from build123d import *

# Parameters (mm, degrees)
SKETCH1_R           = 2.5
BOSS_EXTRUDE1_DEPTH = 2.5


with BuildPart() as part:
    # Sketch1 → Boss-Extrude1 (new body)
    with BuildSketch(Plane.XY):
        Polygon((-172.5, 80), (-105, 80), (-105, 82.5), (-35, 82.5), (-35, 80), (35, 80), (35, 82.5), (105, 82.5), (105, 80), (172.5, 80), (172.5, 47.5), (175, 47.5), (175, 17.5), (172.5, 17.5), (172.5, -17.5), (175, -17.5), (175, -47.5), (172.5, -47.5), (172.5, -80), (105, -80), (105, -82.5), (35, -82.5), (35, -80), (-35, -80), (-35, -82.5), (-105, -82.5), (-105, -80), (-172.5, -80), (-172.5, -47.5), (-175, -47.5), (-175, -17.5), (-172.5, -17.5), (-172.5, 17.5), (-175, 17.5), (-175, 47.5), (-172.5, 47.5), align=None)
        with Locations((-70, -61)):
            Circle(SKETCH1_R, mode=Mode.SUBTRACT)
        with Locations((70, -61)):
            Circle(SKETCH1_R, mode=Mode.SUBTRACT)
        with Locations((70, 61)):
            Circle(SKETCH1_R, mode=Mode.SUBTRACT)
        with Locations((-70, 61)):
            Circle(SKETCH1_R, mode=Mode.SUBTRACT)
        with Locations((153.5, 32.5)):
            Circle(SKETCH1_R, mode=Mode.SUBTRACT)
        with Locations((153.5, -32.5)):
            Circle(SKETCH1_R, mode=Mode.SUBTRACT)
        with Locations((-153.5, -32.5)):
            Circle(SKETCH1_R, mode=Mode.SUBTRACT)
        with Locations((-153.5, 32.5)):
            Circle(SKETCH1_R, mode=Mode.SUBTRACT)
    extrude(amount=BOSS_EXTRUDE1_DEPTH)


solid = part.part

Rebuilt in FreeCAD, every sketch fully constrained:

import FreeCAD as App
import Part
import Sketcher
from FreeCAD import Vector
Q = App.Units.Quantity


def add_polygon(sketch, points):
    """Adds a closed chain of lines whose ends are joined by coincident constraints."""
    first, n = sketch.GeometryCount, len(points)
    for a, b in zip(points, points[1:] + points[:1]):
        sketch.addGeometry(Part.LineSegment(App.Vector(*a, 0), App.Vector(*b, 0)), False)
    for i in range(n):
        sketch.addConstraint(Sketcher.Constraint("Coincident", first + i, 2, first + (i + 1) % n, 1))

doc = App.newDocument("Part")
params = doc.addObject("Spreadsheet::Sheet", "Params")
for row, (alias, value) in enumerate([
    ("sketch1_diameter", "5 mm"),
    ("sketch1_width", "70 mm"),
    ("sketch1_height", "30 mm"),
    ("sketch1_height2", "35 mm"),
    ("sketch1_width2", "67.5 mm"),
    ("pad1_length", "2.5 mm"),
], start=1):
    params.set(f"A{row}", alias)
    params.set(f"B{row}", "=" + value)
    params.setAlias(f"B{row}", alias)

body = doc.addObject("PartDesign::Body", "Body")

# Sketch on XY plane
sketch1 = body.newObject("Sketcher::SketchObject", "Sketch")
sketch1.AttachmentSupport = (doc.getObject("XY_Plane"), [""])
sketch1.MapMode = "FlatFace"
add_polygon(sketch1, [(-105, 80), (-172.5, 80), (-172.5, 47.5), (-175, 47.5), (-175, 17.5), (-172.5, 17.5), (-172.5, -17.5), (-175, -17.5), (-175, -47.5), (-172.5, -47.5), (-172.5, -80), (-105, -80), (-105, -82.5), (-35, -82.5), (-35, -80), (35, -80), (35, -82.5), (105, -82.5), (105, -80), (172.5, -80), (172.5, -47.5), (175, -47.5), (175, -17.5), (172.5, -17.5), (172.5, 17.5), (175, 17.5), (175, 47.5), (172.5, 47.5), (172.5, 80), (105, 80), (105, 82.5), (35, 82.5), (35, 80), (-35, 80), (-35, 82.5), (-105, 82.5)])  # lines 0-35
sketch1.addGeometry(Part.Circle(Vector(153.5, -32.5, 0), Vector(0, 0, 1), 2.5), False)  # 36
sketch1.addGeometry(Part.Circle(Vector(70, -61, 0), Vector(0, 0, 1), 2.5), False)  # 37
sketch1.addGeometry(Part.Circle(Vector(-70, -61, 0), Vector(0, 0, 1), 2.5), False)  # 38
sketch1.addGeometry(Part.Circle(Vector(-153.5, -32.5, 0), Vector(0, 0, 1), 2.5), False)  # 39
sketch1.addGeometry(Part.Circle(Vector(153.5, 32.5, 0), Vector(0, 0, 1), 2.5), False)  # 40
sketch1.addGeometry(Part.Circle(Vector(70, 61, 0), Vector(0, 0, 1), 2.5), False)  # 41
sketch1.addGeometry(Part.Circle(Vector(-70, 61, 0), Vector(0, 0, 1), 2.5), False)  # 42
sketch1.addGeometry(Part.Circle(Vector(-153.5, 32.5, 0), Vector(0, 0, 1), 2.5), False)  # 43
sketch1.addConstraint([
    Sketcher.Constraint("Horizontal", 0),
    Sketcher.Constraint("Vertical", 1),
    Sketcher.Constraint("Horizontal", 2),
    Sketcher.Constraint("Vertical", 3),
    Sketcher.Constraint("Horizontal", 4),
    Sketcher.Constraint("Vertical", 5),
    Sketcher.Constraint("Horizontal", 6),
    Sketcher.Constraint("Vertical", 7),
    Sketcher.Constraint("Horizontal", 8),
    Sketcher.Constraint("Vertical", 9),
    Sketcher.Constraint("Horizontal", 10),
    Sketcher.Constraint("Vertical", 11),
    Sketcher.Constraint("Horizontal", 12),
    Sketcher.Constraint("Vertical", 13),
    Sketcher.Constraint("Horizontal", 14),
    Sketcher.Constraint("Vertical", 15),
    Sketcher.Constraint("Horizontal", 16),
    Sketcher.Constraint("Vertical", 17),
    Sketcher.Constraint("Horizontal", 18),
    Sketcher.Constraint("Vertical", 19),
    Sketcher.Constraint("Horizontal", 20),
    Sketcher.Constraint("Vertical", 21),
    Sketcher.Constraint("Horizontal", 22),
    Sketcher.Constraint("Vertical", 23),
    Sketcher.Constraint("Horizontal", 24),
    Sketcher.Constraint("Vertical", 25),
    Sketcher.Constraint("Horizontal", 26),
    Sketcher.Constraint("Vertical", 27),
    Sketcher.Constraint("Horizontal", 28),
    Sketcher.Constraint("Vertical", 29),
    Sketcher.Constraint("Horizontal", 30),
    Sketcher.Constraint("Vertical", 31),
    Sketcher.Constraint("Horizontal", 32),
    Sketcher.Constraint("Vertical", 33),
    Sketcher.Constraint("Horizontal", 34),
    Sketcher.Constraint("Vertical", 35),
    Sketcher.Constraint("Equal", 36, 37),
    Sketcher.Constraint("Equal", 37, 38),
    Sketcher.Constraint("Equal", 38, 39),
    Sketcher.Constraint("Equal", 39, 40),
    Sketcher.Constraint("Equal", 40, 41),
    Sketcher.Constraint("Equal", 41, 42),
    Sketcher.Constraint("Equal", 42, 43),
    Sketcher.Constraint("Symmetric", 39, 3, 40, 3, -1, 1),
    Sketcher.Constraint("Symmetric", 38, 3, 41, 3, -1, 1),
    Sketcher.Constraint("Symmetric", 37, 3, 42, 3, -1, 1),
    Sketcher.Constraint("Symmetric", 36, 3, 43, 3, -1, 1),
    Sketcher.Constraint("Symmetric", 0, 2, 18, 2, -1, 1),
    Sketcher.Constraint("Symmetric", 2, 2, 20, 2, -1, 1),
    Sketcher.Constraint("Symmetric", 4, 2, 22, 2, -1, 1),
    Sketcher.Constraint("Symmetric", 6, 2, 24, 2, -1, 1),
    Sketcher.Constraint("Symmetric", 8, 2, 26, 2, -1, 1),
    Sketcher.Constraint("Symmetric", 10, 2, 28, 2, -1, 1),
    Sketcher.Constraint("Symmetric", 12, 2, 30, 2, -1, 1),
    Sketcher.Constraint("Symmetric", 14, 2, 32, 2, -1, 1),
    Sketcher.Constraint("Symmetric", 16, 2, 34, 2, -1, 1),
    Sketcher.Constraint("Symmetric", 37, 3, 38, 3, -2),
    Sketcher.Constraint("Symmetric", 36, 3, 39, 3, -2),
    Sketcher.Constraint("Symmetric", 12, 2, 15, 2, -2),
    Sketcher.Constraint("Symmetric", 10, 2, 17, 2, -2),
    Sketcher.Constraint("Symmetric", 8, 2, 19, 2, -2),
    Sketcher.Constraint("Symmetric", 6, 2, 21, 2, -2),
    Sketcher.Constraint("Horizontal", 10, 2, 13, 2),
    Sketcher.Constraint("Vertical", 1, 2, 4, 2),
    Sketcher.Constraint("Equal", 12, 14),
    Sketcher.Constraint("Equal", 26, 11),
    Sketcher.Constraint("Diameter", 36, Q("5 mm")),
    Sketcher.Constraint("DistanceX", 12, 1, 12, 2, Q("70 mm")),
    Sketcher.Constraint("DistanceY", 3, 2, 3, 1, Q("30 mm")),
    Sketcher.Constraint("DistanceY", 5, 2, 5, 1, Q("35 mm")),
    Sketcher.Constraint("DistanceX", 0, 2, 0, 1, Q("67.5 mm")),
    Sketcher.Constraint("DistanceX", 2, 2, 2, 1, Q("2.5 mm")),
    Sketcher.Constraint("DistanceY", 1, 2, 1, 1, Q("32.5 mm")),
    Sketcher.Constraint("DistanceX", -1, 1, 37, 3, Q("70 mm")),
    Sketcher.Constraint("DistanceY", 37, 3, -1, 1, Q("61 mm")),
    Sketcher.Constraint("DistanceX", 39, 3, 36, 3, Q("307 mm")),
    Sketcher.Constraint("DistanceY", 36, 3, 40, 3, Q("65 mm")),
])
sketch1.setExpression("Constraints[102]", "Params.sketch1_diameter")
sketch1.setExpression("Constraints[103]", "Params.sketch1_width")
sketch1.setExpression("Constraints[104]", "Params.sketch1_height")
sketch1.setExpression("Constraints[105]", "Params.sketch1_height2")
sketch1.setExpression("Constraints[106]", "Params.sketch1_width2")
pad1 = body.newObject("PartDesign::Pad", "Pad")
pad1.Profile = sketch1
pad1.setExpression("Length", "Params.pad1_length")

doc.recompute()
